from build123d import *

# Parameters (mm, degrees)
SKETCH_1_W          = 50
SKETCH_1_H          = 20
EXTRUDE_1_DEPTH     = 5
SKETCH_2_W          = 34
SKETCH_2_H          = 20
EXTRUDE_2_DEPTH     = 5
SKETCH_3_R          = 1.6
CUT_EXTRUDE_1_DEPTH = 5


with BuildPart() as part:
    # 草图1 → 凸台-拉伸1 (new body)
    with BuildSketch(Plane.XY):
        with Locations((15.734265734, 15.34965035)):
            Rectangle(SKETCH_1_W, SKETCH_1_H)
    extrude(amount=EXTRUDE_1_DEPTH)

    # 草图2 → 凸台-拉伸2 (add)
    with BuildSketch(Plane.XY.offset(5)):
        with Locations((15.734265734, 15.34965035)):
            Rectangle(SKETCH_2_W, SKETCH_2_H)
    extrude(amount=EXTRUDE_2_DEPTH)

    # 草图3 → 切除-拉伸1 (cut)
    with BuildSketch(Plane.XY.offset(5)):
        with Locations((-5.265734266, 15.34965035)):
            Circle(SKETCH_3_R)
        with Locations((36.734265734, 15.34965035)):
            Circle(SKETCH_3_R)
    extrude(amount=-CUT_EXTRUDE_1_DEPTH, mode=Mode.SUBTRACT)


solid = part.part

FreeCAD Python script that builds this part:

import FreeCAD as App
import Part
import Sketcher
Q = App.Units.Quantity

doc = App.newDocument("Part")
body = doc.addObject("PartDesign::Body", "Body")

# Sketch on XY plane
sketch1 = body.newObject("Sketcher::SketchObject", "Sketch")
sketch1.AttachmentSupport = (doc.getObject("XY_Plane"), [""])
sketch1.MapMode = "FlatFace"
sketch1.addGeometry([
    Part.LineSegment(App.Vector(-9.265734, 25.34965, 0), App.Vector(-9.265734, 5.34965, 0)),
    Part.LineSegment(App.Vector(-9.265734, 5.34965, 0), App.Vector(40.734266, 5.34965, 0)),
    Part.LineSegment(App.Vector(40.734266, 5.34965, 0), App.Vector(40.734266, 25.34965, 0)),
    Part.LineSegment(App.Vector(40.734266, 25.34965, 0), App.Vector(-9.265734, 25.34965, 0)),
], False)
sketch1.addConstraint([
    Sketcher.Constraint("Coincident", 0, 2, 1, 1),
    Sketcher.Constraint("Coincident", 1, 2, 2, 1),
    Sketcher.Constraint("Coincident", 2, 2, 3, 1),
    Sketcher.Constraint("Coincident", 3, 2, 0, 1),
    Sketcher.Constraint("Vertical", 0),
    Sketcher.Constraint("Horizontal", 1),
    Sketcher.Constraint("Vertical", 2),
    Sketcher.Constraint("Horizontal", 3),
    Sketcher.Constraint("DistanceX", 1, 1, 1, 2, Q("50 mm")),
    Sketcher.Constraint("DistanceY", 0, 2, 0, 1, Q("20 mm")),
    Sketcher.Constraint("DistanceY", -1, 1, 0, 2, Q("5.34965 mm")),
    Sketcher.Constraint("DistanceX", 0, 2, -1, 1, Q("9.265734 mm")),
])
pad1 = body.newObject("PartDesign::Pad", "Pad")
pad1.Profile = sketch1
pad1.Length = 5

# Sketch on XY plane
sketch2 = body.newObject("Sketcher::SketchObject", "Sketch001")
sketch2.AttachmentSupport = (doc.getObject("XY_Plane"), [""])
sketch2.MapMode = "FlatFace"
sketch2.AttachmentOffset = App.Placement(App.Vector(0, 0, 5), App.Rotation())
sketch2.addGeometry([
    Part.LineSegment(App.Vector(-1.265734, 25.34965, 0), App.Vector(-1.265734, 5.34965, 0)),
    Part.LineSegment(App.Vector(-1.265734, 5.34965, 0), App.Vector(32.734266, 5.34965, 0)),
    Part.LineSegment(App.Vector(32.734266, 5.34965, 0), App.Vector(32.734266, 25.34965, 0)),
    Part.LineSegment(App.Vector(32.734266, 25.34965, 0), App.Vector(-1.265734, 25.34965, 0)),
], False)
sketch2.addConstraint([
    Sketcher.Constraint("Coincident", 0, 2, 1, 1),
    Sketcher.Constraint("Coincident", 1, 2, 2, 1),
    Sketcher.Constraint("Coincident", 2, 2, 3, 1),
    Sketcher.Constraint("Coincident", 3, 2, 0, 1),
    Sketcher.Constraint("Vertical", 0),
    Sketcher.Constraint("Horizontal", 1),
    Sketcher.Constraint("Vertical", 2),
    Sketcher.Constraint("Horizontal", 3),
    Sketcher.Constraint("DistanceX", 1, 1, 1, 2, Q("34 mm")),
    Sketcher.Constraint("DistanceY", 0, 2, 0, 1, Q("20 mm")),
    Sketcher.Constraint("DistanceY", -1, 1, 0, 2, Q("5.34965 mm")),
    Sketcher.Constraint("DistanceX", 0, 2, -1, 1, Q("1.265734 mm")),
])
pad2 = body.newObject("PartDesign::Pad", "Pad001")
pad2.Profile = sketch2
pad2.Length = 5

# Sketch on XY plane
sketch3 = body.newObject("Sketcher::SketchObject", "Sketch002")
sketch3.AttachmentSupport = (doc.getObject("XY_Plane"), [""])
sketch3.MapMode = "FlatFace"
sketch3.AttachmentOffset = App.Placement(App.Vector(0, 0, 5), App.Rotation())
sketch3.addGeometry([
    Part.Circle(App.Vector(-5.265734, 15.34965, 0), App.Vector(0, 0, 1), 1.6),
    Part.Circle(App.Vector(36.734266, 15.34965, 0), App.Vector(0, 0, 1), 1.6),
], False)
sketch3.addConstraint([
    Sketcher.Constraint("Equal", 0, 1),
    Sketcher.Constraint("Horizontal", 0, 3, 1, 3),
    Sketcher.Constraint("Diameter", 0, Q("3.2 mm")),
    Sketcher.Constraint("DistanceX", 0, 3, 1, 3, Q("42 mm")),
    Sketcher.Constraint("DistanceY", -1, 1, 0, 3, Q("15.34965 mm")),
    Sketcher.Constraint("DistanceX", 0, 3, -1, 1, Q("5.265734 mm")),
])
pocket1 = body.newObject("PartDesign::Pocket", "Pocket")
pocket1.Profile = sketch3
pocket1.Length = 5

doc.recompute()
